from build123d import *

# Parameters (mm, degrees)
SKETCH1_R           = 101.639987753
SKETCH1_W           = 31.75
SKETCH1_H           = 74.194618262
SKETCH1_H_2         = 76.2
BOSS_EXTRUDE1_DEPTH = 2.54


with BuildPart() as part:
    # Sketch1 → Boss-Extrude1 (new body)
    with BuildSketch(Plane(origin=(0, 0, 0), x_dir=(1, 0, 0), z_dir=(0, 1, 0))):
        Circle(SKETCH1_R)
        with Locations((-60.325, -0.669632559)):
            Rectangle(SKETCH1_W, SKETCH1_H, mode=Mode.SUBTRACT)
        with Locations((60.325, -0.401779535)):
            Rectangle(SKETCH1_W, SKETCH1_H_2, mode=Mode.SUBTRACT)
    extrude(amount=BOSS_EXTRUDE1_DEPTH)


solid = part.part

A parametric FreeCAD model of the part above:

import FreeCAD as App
import Part
import Sketcher
Q = App.Units.Quantity


def add_polygon(sketch, points):
    """Adds a closed chain of lines whose ends are joined by coincident constraints."""
    first, n = sketch.GeometryCount, len(points)
    for a, b in zip(points, points[1:] + points[:1]):
        sketch.addGeometry(Part.LineSegment(App.Vector(*a, 0), App.Vector(*b, 0)), False)
    for i in range(n):
        sketch.addConstraint(Sketcher.Constraint("Coincident", first + i, 2, first + (i + 1) % n, 1))

doc = App.newDocument("Part")
body = doc.addObject("PartDesign::Body", "Body")

sketch1 = body.newObject("Sketcher::SketchObject", "Sketch")
sketch1.AttachmentSupport = (doc.getObject("XZ_Plane"), [""])
sketch1.MapMode = "FlatFace"
sketch1.addGeometry(Part.Circle(App.Vector(0, 0, 0), App.Vector(0, 0, 1), 102), False)
add_polygon(sketch1, [(-44, 38), (-76, 38), (-76, -36), (-44, -36)])
add_polygon(sketch1, [(76, 39), (44, 39), (44, -38), (76, -38)])
sketch1.addConstraint([
    Sketcher.Constraint("Horizontal", 1),
    Sketcher.Constraint("Vertical", 2),
    Sketcher.Constraint("Horizontal", 3),
    Sketcher.Constraint("Vertical", 4),
    Sketcher.Constraint("Horizontal", 5),
    Sketcher.Constraint("Vertical", 6),
    Sketcher.Constraint("Horizontal", 7),
    Sketcher.Constraint("Vertical", 8),
    Sketcher.Constraint("Coincident", 0, 3, -1, 1),
    Sketcher.Constraint("Equal", 3, 5),
    Sketcher.Constraint("DistanceY", 6, 2, 6, 1, Q("3 in")),
    Sketcher.Constraint("DistanceX", 1, 2, -1, 1, Q("3 in")),
    Sketcher.Constraint("DistanceX", -1, 1, 7, 2, Q("3 in")),
    Sketcher.Constraint("DistanceX", 1, 2, 1, 1, Q("1.25 in")),
    Sketcher.Constraint("Diameter", 0, 203.279976),
    Sketcher.Constraint("DistanceY", 2, 2, 2, 1, 74.194618),
    Sketcher.Constraint("DistanceY", -1, 1, 1, 2, 37.766942),
    Sketcher.Constraint("DistanceY", -1, 1, 5, 2, 38.50178),
])
pad1 = body.newObject("PartDesign::Pad", "Pad")
pad1.Profile = sketch1
pad1.Length = Q("0.1 in")
pad1.Reversed = True

doc.recompute()
